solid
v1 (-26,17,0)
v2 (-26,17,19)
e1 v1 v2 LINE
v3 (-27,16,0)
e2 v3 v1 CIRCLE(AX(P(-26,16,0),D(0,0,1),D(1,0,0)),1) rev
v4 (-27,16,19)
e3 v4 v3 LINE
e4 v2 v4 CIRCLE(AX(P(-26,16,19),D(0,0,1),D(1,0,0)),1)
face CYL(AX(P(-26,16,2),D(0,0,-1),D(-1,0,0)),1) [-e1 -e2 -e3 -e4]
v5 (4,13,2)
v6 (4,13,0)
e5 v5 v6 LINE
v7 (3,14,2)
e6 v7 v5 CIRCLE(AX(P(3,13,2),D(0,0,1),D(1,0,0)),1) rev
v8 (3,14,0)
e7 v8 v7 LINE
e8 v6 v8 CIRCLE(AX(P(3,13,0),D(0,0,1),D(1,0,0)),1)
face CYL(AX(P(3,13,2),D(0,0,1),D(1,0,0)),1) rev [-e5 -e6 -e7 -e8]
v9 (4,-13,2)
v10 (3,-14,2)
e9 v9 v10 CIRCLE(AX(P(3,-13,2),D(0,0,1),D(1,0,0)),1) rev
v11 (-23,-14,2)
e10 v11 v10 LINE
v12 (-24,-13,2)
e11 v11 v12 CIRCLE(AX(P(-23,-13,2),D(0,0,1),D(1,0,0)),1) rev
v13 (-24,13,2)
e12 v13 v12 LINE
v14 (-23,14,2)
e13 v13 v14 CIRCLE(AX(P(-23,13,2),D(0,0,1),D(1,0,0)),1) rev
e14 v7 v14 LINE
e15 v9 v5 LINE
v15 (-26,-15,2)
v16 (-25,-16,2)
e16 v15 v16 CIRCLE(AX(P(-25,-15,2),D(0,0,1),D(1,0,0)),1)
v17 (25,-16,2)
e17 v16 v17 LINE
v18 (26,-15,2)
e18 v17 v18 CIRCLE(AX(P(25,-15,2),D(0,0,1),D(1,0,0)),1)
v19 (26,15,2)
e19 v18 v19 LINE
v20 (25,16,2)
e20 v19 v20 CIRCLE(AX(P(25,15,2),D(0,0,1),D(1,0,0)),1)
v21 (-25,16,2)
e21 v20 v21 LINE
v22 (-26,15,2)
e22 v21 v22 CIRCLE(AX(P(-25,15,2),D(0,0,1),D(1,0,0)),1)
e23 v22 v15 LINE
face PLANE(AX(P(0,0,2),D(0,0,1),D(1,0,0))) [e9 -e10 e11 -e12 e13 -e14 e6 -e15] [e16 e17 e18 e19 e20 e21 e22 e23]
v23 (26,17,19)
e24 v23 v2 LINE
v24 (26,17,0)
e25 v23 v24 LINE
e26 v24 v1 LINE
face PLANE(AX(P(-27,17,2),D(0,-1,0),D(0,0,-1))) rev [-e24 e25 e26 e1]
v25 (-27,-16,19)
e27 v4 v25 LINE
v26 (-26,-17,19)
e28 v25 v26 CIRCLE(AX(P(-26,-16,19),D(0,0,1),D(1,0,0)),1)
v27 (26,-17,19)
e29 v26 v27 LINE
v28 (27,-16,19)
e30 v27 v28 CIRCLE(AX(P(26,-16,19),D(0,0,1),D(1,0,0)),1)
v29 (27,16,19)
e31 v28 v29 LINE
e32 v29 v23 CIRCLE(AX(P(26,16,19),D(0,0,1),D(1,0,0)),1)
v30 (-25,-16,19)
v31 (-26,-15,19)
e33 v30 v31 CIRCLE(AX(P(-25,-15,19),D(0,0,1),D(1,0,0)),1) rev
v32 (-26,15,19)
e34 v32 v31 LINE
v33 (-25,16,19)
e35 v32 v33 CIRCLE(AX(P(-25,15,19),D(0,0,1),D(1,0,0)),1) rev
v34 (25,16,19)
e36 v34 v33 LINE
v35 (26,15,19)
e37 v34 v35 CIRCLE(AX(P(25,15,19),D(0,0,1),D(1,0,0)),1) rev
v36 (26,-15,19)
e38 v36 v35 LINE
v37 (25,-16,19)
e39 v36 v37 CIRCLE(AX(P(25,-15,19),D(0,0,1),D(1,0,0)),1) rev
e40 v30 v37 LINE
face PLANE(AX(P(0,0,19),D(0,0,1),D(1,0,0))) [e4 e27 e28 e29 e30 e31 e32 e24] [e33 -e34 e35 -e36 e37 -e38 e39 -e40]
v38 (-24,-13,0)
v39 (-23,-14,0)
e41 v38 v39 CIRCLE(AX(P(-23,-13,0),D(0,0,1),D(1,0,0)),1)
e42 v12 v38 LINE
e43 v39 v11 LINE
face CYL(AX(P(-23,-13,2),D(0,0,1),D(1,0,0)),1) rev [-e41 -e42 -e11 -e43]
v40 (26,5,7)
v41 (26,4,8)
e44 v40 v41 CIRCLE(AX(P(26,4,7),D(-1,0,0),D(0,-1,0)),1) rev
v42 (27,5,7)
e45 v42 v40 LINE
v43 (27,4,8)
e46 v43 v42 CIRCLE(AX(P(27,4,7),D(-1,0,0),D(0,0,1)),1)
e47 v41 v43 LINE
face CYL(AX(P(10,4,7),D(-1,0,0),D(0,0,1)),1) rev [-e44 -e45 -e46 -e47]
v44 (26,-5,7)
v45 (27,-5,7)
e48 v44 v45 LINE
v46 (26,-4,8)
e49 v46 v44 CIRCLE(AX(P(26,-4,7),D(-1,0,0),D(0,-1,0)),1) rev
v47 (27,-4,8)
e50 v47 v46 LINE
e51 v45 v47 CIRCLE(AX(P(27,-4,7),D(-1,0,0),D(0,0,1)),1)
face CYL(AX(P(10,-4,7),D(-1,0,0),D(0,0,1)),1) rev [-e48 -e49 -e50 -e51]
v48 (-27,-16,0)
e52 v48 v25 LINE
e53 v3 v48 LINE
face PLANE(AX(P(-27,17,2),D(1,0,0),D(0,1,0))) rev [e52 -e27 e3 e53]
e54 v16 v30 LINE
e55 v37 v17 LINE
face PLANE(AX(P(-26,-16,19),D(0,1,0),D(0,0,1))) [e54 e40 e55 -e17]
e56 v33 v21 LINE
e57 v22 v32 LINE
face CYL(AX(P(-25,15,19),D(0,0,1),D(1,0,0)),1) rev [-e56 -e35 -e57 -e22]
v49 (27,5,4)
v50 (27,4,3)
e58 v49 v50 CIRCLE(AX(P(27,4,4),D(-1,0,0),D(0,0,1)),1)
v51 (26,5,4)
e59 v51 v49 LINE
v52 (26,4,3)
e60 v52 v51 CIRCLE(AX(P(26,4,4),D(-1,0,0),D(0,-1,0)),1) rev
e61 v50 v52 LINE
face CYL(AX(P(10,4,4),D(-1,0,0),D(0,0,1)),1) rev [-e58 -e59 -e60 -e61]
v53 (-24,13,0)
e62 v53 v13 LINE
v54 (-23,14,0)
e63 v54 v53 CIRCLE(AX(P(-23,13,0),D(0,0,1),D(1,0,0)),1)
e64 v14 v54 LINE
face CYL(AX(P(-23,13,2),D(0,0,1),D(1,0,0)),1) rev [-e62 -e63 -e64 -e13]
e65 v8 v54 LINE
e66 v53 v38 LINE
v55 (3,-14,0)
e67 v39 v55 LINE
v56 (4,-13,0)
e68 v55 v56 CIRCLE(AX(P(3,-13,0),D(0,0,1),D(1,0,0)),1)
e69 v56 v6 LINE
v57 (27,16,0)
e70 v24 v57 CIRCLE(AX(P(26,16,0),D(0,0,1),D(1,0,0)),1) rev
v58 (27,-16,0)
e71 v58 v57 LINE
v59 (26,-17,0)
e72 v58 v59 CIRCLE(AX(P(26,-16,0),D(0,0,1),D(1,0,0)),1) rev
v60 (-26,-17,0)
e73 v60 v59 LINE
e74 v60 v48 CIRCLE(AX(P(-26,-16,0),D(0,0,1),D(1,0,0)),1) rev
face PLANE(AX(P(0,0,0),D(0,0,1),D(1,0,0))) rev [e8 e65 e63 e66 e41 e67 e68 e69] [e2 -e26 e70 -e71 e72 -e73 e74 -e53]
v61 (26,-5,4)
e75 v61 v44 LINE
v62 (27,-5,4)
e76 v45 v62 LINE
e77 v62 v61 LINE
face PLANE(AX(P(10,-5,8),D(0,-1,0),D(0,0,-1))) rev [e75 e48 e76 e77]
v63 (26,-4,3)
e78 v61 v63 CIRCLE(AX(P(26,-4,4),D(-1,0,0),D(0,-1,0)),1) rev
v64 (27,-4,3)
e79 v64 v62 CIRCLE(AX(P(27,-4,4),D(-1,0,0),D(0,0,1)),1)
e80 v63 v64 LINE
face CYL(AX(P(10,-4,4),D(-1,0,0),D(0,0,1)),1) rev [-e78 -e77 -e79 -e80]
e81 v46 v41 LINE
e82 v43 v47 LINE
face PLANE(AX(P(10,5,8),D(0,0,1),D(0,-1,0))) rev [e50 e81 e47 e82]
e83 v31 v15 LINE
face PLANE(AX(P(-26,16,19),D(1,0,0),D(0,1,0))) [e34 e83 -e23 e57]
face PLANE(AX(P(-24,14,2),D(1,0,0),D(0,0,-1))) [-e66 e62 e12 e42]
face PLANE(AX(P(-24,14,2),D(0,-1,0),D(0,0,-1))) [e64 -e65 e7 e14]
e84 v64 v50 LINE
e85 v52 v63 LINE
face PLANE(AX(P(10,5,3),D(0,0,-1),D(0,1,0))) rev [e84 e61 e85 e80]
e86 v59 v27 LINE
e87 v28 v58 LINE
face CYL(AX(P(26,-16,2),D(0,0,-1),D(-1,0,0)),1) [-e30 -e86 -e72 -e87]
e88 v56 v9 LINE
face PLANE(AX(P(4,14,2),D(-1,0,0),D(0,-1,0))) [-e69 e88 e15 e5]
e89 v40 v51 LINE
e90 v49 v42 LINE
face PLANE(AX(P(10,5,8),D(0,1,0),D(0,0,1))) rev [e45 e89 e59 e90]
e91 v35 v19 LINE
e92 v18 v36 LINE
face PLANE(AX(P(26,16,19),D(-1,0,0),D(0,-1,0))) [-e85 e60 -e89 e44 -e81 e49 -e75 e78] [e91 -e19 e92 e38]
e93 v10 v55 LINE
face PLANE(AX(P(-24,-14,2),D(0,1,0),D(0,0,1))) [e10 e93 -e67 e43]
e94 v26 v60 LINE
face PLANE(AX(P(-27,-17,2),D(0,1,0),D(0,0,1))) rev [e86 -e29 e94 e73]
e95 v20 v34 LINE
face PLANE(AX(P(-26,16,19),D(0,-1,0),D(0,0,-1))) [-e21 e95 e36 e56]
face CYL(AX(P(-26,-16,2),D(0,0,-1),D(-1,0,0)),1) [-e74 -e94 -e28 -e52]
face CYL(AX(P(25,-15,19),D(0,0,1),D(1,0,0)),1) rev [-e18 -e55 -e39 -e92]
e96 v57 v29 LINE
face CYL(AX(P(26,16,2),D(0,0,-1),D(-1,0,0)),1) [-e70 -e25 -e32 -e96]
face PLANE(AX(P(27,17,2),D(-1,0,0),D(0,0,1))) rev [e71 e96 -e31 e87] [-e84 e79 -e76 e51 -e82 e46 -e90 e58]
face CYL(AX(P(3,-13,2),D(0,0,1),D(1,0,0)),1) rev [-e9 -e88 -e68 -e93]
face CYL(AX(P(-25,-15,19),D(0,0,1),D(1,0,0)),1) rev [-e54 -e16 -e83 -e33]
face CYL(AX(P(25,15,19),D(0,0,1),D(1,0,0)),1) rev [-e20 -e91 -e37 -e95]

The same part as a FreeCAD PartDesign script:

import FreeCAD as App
import Part
import Sketcher
from FreeCAD import Vector
Q = App.Units.Quantity


def edges_at(feature, points):
    """Names of the edges that pass closest to the given points."""
    edges = feature.Shape.Edges
    near = lambda p: min(range(len(edges)), key=lambda i: edges[i].distToShape(Part.Vertex(*p))[0])
    return sorted({f"Edge{near(p) + 1}" for p in points})


def add_polygon(sketch, points):
    """Adds a closed chain of lines whose ends are joined by coincident constraints."""
    first, n = sketch.GeometryCount, len(points)
    for a, b in zip(points, points[1:] + points[:1]):
        sketch.addGeometry(Part.LineSegment(App.Vector(*a, 0), App.Vector(*b, 0)), False)
    for i in range(n):
        sketch.addConstraint(Sketcher.Constraint("Coincident", first + i, 2, first + (i + 1) % n, 1))

doc = App.newDocument("Part")
params = doc.addObject("Spreadsheet::Sheet", "Params")
for row, (alias, value) in enumerate([
    ("sketch1_width", "54 mm"),
    ("sketch1_width2", "28 mm"),
    ("sketch1_height", "34 mm"),
    ("pad1_length", "2 mm"),
    ("sketch2_width", "54 mm"),
    ("sketch2_width2", "52 mm"),
    ("sketch2_height", "34 mm"),
    ("sketch2_height2", "32 mm"),
    ("pad2_length", "17 mm"),
    ("fillet_radius", "1 mm"),
    ("fillet2_radius", "1 mm"),
    ("sketch3_width", "10 mm"),
    ("sketch3_height", "5 mm"),
    ("pocket1_length", "17 mm"),
    ("fillet3_radius", "1 mm"),
    ("fillet4_radius", "1 mm"),
], start=1):
    params.set(f"A{row}", alias)
    params.set(f"B{row}", "=" + value)
    params.setAlias(f"B{row}", alias)

body = doc.addObject("PartDesign::Body", "Body")

sketch1 = doc.addObject("Sketcher::SketchObject", "Sketch")
body.addObject(sketch1)
sketch1.AttachmentSupport = (doc.XY_Plane, [""])
sketch1.MapMode = "FlatFace"
add_polygon(sketch1, [(-27, 17), (-27, -17), (27, -17), (27, 17)])
add_polygon(sketch1, [(4, -14), (-24, -14), (-24, 14), (4, 14)])
sketch1.addConstraint([
    Sketcher.Constraint("Vertical", 0),
    Sketcher.Constraint("Horizontal", 1),
    Sketcher.Constraint("Vertical", 2),
    Sketcher.Constraint("Horizontal", 3),
    Sketcher.Constraint("Horizontal", 4),
    Sketcher.Constraint("Vertical", 5),
    Sketcher.Constraint("Horizontal", 6),
    Sketcher.Constraint("Vertical", 7),
    Sketcher.Constraint("Symmetric", 0, 2, 2, 2, -1, 1),
    Sketcher.Constraint("Equal", 6, 5),
    Sketcher.Constraint("DistanceX", 1, 1, 1, 2, Q("54 mm")),
    Sketcher.Constraint("DistanceX", 4, 2, 4, 1, Q("28 mm")),
    Sketcher.Constraint("DistanceY", 0, 2, 0, 1, Q("34 mm")),
    Sketcher.Constraint("DistanceX", 4, 2, -1, 1, Q("24 mm")),
    Sketcher.Constraint("DistanceY", 4, 2, -1, 1, Q("14 mm")),
])
sketch1.setExpression("Constraints[18]", "Params.sketch1_width")
sketch1.setExpression("Constraints[19]", "Params.sketch1_width2")
sketch1.setExpression("Constraints[20]", "Params.sketch1_height")
pad1 = doc.addObject("PartDesign::Pad", "Pad")
body.addObject(pad1)
pad1.Profile = sketch1
pad1.setExpression("Length", "Params.pad1_length")

sketch2 = doc.addObject("Sketcher::SketchObject", "Sketch001")
body.addObject(sketch2)
sketch2.AttachmentSupport = (doc.XY_Plane, [""])
sketch2.MapMode = "FlatFace"
sketch2.AttachmentOffset = App.Placement(Vector(0, 0, 2), App.Rotation())
add_polygon(sketch2, [(-27, 17), (-27, -17), (27, -17), (27, 17)])
add_polygon(sketch2, [(26, -16), (-26, -16), (-26, 16), (26, 16)])
sketch2.addConstraint([
    Sketcher.Constraint("Vertical", 0),
    Sketcher.Constraint("Horizontal", 1),
    Sketcher.Constraint("Vertical", 2),
    Sketcher.Constraint("Horizontal", 3),
    Sketcher.Constraint("Horizontal", 4),
    Sketcher.Constraint("Vertical", 5),
    Sketcher.Constraint("Horizontal", 6),
    Sketcher.Constraint("Vertical", 7),
    Sketcher.Constraint("Symmetric", 0, 2, 2, 2, -1, 1),
    Sketcher.Constraint("Symmetric", 4, 2, 6, 2, -1, 1),
    Sketcher.Constraint("DistanceX", 1, 1, 1, 2, Q("54 mm")),
    Sketcher.Constraint("DistanceX", 4, 2, 4, 1, Q("52 mm")),
    Sketcher.Constraint("DistanceY", 0, 2, 0, 1, Q("34 mm")),
    Sketcher.Constraint("DistanceY", 5, 1, 5, 2, Q("32 mm")),
])
sketch2.setExpression("Constraints[18]", "Params.sketch2_width")
sketch2.setExpression("Constraints[19]", "Params.sketch2_width2")
sketch2.setExpression("Constraints[20]", "Params.sketch2_height")
sketch2.setExpression("Constraints[21]", "Params.sketch2_height2")
pad2 = doc.addObject("PartDesign::Pad", "Pad001")
body.addObject(pad2)
pad2.Profile = sketch2
pad2.setExpression("Length", "Params.pad2_length")
doc.recompute()

fillet = doc.addObject("PartDesign::Fillet", "Fillet")
body.addObject(fillet)
fillet.Base = (pad2, edges_at(pad2, [
    (26, 16, 10.5),
    (-26, 16, 10.5),
    (-26, -16, 10.5),
    (26, -16, 10.5),
]))
fillet.setExpression("Radius", "Params.fillet_radius")
doc.recompute()

fillet2 = doc.addObject("PartDesign::Fillet", "Fillet001")
body.addObject(fillet2)
fillet2.Base = (fillet, edges_at(fillet, [
    (27, -17, 9.5),
    (-27, -17, 9.5),
    (-27, 17, 9.5),
    (27, 17, 9.5),
]))
fillet2.setExpression("Radius", "Params.fillet2_radius")

sketch3 = doc.addObject("Sketcher::SketchObject", "Sketch002")
body.addObject(sketch3)
sketch3.AttachmentSupport = (doc.YZ_Plane, [""])
sketch3.MapMode = "FlatFace"
sketch3.AttachmentOffset = App.Placement(Vector(0, 0, 27), App.Rotation())
add_polygon(sketch3, [(5, 8), (-5, 8), (-5, 3), (5, 3)])
sketch3.addConstraint([
    Sketcher.Constraint("Horizontal", 0),
    Sketcher.Constraint("Vertical", 1),
    Sketcher.Constraint("Horizontal", 2),
    Sketcher.Constraint("Vertical", 3),
    Sketcher.Constraint("DistanceX", 0, 2, 0, 1, Q("10 mm")),
    Sketcher.Constraint("DistanceY", 1, 2, 1, 1, Q("5 mm")),
    Sketcher.Constraint("DistanceX", 0, 2, -1, 1, Q("5 mm")),
    Sketcher.Constraint("DistanceY", -1, 1, 0, 2, Q("8 mm")),
])
sketch3.setExpression("Constraints[8]", "Params.sketch3_width")
sketch3.setExpression("Constraints[9]", "Params.sketch3_height")
pocket1 = doc.addObject("PartDesign::Pocket", "Pocket")
body.addObject(pocket1)
pocket1.Profile = sketch3
pocket1.setExpression("Length", "Params.pocket1_length")
doc.recompute()

fillet3 = doc.addObject("PartDesign::Fillet", "Fillet002")
body.addObject(fillet3)
fillet3.Base = (pocket1, edges_at(pocket1, [
    (26.5, 5, 3),
    (26.5, -5, 3),
    (26.5, -5, 8),
    (26.5, 5, 8),
]))
fillet3.setExpression("Radius", "Params.fillet3_radius")
doc.recompute()

fillet4 = doc.addObject("PartDesign::Fillet", "Fillet003")
body.addObject(fillet4)
fillet4.Base = (fillet3, edges_at(fillet3, [
    (4, -14, 1),
    (4, 14, 1),
    (-24, 14, 1),
    (-24, -14, 1),
]))
fillet4.setExpression("Radius", "Params.fillet4_radius")

doc.recompute()
